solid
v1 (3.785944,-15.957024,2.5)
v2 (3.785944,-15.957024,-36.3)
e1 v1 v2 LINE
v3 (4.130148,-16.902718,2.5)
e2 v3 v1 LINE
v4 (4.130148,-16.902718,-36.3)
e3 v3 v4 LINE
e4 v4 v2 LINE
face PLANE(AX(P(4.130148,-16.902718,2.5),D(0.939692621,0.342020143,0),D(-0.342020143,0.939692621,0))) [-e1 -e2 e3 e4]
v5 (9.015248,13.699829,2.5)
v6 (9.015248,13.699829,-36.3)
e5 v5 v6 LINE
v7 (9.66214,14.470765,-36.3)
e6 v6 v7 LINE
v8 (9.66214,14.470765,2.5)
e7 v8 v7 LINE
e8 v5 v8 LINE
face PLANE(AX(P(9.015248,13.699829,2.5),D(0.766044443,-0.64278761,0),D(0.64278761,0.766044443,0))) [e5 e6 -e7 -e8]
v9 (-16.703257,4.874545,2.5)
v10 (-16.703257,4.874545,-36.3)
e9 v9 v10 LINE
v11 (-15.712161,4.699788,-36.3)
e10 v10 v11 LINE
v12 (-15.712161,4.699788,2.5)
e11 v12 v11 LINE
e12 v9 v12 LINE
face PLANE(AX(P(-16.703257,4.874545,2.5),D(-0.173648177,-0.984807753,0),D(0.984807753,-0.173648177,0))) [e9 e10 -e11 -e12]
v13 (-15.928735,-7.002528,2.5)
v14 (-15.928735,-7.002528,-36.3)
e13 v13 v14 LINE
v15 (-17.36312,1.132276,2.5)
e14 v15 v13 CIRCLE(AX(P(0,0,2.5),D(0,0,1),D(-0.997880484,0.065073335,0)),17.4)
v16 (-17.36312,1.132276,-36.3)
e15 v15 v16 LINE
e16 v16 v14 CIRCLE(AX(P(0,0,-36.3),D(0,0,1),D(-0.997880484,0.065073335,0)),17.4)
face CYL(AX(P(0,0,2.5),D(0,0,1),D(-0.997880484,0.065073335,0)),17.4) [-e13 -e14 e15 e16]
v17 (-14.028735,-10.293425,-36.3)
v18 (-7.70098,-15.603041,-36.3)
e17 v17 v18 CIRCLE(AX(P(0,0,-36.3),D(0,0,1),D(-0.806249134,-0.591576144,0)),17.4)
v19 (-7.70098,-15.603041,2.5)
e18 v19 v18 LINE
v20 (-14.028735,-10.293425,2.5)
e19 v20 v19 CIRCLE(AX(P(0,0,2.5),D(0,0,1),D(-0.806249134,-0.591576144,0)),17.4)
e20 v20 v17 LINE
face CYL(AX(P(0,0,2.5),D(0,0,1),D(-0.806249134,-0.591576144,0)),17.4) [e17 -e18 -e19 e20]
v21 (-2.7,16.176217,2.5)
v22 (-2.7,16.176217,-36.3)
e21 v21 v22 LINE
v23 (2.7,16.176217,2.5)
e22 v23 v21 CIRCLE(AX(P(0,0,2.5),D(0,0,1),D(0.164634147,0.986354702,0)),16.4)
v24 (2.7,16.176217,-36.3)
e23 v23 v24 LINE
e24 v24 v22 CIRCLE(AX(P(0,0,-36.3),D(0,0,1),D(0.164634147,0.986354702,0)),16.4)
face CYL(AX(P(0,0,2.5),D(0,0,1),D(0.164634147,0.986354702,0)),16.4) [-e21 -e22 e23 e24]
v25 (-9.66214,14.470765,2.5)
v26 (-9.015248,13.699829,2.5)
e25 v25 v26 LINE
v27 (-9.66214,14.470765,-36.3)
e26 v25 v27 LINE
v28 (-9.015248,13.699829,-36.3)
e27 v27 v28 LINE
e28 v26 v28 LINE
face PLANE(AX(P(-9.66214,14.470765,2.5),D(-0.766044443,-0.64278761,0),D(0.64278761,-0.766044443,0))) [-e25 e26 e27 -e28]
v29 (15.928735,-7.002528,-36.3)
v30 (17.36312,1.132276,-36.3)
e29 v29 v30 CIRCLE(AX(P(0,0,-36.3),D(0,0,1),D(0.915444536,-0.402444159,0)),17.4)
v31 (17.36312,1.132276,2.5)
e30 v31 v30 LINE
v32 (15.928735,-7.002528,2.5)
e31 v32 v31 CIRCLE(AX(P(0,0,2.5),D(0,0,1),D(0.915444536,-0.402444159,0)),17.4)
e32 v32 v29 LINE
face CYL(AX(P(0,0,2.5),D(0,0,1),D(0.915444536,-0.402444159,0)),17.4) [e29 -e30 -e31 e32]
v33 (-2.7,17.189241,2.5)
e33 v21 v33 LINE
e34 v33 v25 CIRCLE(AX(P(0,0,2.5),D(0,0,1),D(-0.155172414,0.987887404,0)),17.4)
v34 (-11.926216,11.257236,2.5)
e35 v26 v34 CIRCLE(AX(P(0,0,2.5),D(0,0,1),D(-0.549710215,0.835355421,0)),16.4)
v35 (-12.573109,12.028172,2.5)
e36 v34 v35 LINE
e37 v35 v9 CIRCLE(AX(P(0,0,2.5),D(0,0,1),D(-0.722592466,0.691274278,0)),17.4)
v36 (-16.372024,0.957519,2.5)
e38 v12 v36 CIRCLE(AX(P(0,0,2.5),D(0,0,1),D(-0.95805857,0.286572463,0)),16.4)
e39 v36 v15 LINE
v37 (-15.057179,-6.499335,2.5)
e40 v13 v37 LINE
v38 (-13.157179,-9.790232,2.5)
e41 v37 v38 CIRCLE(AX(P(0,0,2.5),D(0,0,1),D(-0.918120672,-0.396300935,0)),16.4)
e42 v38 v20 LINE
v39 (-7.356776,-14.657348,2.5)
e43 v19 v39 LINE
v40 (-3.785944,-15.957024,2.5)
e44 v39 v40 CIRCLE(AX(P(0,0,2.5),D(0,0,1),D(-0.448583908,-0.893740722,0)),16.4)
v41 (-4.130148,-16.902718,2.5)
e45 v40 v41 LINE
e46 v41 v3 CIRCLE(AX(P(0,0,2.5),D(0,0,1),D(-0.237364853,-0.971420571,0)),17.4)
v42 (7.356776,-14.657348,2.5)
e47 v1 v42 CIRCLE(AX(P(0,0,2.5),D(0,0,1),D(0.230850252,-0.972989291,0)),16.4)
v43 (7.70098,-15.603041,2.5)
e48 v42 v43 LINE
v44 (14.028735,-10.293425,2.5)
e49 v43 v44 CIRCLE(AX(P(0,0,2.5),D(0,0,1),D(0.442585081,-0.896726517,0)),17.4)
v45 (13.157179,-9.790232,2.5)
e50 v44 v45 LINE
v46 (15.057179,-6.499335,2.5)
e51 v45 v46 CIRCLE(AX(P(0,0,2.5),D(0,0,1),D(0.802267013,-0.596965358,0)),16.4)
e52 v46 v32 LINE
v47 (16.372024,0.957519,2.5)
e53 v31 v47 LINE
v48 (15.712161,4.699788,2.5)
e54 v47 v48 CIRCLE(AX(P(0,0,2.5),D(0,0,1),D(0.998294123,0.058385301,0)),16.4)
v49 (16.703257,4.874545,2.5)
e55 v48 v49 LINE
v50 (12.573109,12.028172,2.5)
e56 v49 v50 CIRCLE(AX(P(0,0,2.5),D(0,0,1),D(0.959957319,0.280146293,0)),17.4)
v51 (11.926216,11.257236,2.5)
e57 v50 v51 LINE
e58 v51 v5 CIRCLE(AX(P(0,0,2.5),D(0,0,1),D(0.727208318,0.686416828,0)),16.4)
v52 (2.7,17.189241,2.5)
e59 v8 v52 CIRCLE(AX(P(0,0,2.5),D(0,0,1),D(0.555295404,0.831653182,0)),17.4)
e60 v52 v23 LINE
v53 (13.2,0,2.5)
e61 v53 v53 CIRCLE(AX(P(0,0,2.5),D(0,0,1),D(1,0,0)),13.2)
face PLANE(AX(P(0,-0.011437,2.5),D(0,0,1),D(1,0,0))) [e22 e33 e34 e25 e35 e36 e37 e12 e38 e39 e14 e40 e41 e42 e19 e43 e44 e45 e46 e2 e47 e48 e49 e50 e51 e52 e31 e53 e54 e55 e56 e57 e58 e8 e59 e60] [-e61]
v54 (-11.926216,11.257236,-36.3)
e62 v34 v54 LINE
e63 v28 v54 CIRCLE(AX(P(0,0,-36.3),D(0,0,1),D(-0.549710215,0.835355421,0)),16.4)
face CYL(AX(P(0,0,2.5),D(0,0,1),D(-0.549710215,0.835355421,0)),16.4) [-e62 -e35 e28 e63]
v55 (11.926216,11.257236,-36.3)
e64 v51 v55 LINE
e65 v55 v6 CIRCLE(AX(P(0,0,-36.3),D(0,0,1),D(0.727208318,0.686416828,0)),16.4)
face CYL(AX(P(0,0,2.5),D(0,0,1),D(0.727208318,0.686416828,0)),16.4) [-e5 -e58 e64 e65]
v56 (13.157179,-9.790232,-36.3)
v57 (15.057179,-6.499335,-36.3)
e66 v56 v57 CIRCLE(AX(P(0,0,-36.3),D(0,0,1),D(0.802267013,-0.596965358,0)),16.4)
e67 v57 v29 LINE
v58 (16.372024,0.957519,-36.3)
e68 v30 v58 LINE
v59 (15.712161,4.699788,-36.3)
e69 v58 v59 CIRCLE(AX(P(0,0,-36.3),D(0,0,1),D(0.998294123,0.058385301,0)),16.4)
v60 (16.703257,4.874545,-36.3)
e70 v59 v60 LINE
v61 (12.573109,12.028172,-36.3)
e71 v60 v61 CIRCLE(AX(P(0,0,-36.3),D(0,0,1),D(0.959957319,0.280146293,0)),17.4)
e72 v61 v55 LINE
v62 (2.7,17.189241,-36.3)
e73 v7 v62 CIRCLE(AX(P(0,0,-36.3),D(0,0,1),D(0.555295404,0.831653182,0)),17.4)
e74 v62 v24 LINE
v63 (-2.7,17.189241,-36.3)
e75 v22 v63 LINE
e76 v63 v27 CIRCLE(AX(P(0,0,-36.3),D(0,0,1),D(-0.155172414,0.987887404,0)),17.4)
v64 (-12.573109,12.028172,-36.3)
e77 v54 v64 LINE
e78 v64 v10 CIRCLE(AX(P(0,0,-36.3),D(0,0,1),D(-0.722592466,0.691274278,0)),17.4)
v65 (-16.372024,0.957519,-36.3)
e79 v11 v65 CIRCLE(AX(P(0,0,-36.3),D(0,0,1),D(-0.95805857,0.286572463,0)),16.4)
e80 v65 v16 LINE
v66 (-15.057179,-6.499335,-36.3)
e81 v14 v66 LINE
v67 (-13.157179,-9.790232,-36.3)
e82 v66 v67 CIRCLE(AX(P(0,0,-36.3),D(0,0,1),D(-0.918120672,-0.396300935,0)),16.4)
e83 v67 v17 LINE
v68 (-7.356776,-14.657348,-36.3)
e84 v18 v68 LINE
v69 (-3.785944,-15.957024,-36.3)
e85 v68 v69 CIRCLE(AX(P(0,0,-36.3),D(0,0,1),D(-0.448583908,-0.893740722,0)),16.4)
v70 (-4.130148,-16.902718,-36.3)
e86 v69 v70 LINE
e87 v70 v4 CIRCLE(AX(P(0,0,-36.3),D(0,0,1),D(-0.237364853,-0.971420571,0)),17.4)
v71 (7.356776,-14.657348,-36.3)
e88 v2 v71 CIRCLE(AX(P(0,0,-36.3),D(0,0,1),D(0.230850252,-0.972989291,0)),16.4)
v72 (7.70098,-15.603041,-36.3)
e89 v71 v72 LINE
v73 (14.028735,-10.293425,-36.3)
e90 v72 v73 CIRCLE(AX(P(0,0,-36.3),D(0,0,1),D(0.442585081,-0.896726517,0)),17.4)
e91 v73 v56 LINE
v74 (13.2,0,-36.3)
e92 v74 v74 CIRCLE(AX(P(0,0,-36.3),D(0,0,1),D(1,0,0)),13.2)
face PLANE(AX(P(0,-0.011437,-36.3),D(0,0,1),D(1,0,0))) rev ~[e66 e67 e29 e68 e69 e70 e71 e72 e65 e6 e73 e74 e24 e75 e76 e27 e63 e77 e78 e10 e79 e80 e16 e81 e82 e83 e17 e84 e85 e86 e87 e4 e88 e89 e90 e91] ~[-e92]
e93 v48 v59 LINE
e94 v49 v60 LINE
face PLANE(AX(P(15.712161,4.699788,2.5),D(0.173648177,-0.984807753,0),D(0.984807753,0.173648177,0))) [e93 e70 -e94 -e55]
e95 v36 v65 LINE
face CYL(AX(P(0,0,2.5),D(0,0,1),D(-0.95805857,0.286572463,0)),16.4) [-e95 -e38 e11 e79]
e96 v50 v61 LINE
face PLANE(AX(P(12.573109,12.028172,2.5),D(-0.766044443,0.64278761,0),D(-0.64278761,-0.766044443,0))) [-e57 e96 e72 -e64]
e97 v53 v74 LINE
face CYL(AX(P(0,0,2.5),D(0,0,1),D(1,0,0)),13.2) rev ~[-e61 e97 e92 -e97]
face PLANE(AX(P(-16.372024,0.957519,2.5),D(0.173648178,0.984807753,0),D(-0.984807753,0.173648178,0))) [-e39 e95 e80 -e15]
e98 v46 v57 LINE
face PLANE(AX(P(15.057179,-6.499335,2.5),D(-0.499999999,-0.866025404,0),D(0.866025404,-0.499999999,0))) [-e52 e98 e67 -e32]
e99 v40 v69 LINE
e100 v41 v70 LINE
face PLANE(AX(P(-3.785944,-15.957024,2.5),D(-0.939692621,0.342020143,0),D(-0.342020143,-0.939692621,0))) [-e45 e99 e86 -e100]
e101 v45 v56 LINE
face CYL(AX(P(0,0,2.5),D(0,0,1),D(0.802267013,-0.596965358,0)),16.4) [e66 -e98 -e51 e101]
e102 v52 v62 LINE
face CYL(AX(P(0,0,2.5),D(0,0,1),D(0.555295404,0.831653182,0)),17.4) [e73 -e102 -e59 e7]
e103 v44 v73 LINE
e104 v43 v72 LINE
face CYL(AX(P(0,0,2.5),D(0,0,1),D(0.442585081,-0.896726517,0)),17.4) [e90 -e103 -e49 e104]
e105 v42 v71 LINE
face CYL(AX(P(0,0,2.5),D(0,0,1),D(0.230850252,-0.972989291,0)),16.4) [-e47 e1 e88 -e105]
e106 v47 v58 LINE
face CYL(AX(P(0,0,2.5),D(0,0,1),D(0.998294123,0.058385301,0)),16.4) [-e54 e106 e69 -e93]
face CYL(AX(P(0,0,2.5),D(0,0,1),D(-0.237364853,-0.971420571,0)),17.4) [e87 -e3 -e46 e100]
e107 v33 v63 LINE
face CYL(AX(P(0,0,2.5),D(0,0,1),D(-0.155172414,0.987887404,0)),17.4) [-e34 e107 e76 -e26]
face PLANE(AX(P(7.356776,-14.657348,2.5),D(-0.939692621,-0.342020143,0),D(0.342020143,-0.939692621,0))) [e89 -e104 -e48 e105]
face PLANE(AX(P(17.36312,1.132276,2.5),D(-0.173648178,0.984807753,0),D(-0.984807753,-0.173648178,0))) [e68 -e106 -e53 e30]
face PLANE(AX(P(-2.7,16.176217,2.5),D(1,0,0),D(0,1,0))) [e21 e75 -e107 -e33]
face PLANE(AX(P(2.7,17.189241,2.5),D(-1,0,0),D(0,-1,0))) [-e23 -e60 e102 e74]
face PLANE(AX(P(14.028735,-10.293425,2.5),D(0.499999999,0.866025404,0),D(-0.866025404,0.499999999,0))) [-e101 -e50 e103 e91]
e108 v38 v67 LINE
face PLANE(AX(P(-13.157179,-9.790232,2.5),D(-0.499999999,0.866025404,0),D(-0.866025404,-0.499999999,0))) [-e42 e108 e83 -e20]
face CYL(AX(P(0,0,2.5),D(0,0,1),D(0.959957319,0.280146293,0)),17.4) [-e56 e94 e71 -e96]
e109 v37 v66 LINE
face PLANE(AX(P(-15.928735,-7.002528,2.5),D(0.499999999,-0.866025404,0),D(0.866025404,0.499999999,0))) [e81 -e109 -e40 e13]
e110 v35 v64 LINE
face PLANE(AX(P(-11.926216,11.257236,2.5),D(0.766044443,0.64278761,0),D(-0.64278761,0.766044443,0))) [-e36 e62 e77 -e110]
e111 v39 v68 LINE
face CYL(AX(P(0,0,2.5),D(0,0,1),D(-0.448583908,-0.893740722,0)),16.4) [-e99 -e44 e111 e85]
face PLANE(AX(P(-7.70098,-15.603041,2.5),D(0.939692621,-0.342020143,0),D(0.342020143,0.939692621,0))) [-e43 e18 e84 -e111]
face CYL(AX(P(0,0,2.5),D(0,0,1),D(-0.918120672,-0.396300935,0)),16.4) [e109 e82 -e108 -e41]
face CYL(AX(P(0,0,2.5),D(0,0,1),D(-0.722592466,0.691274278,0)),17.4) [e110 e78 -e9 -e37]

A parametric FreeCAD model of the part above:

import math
import FreeCAD as App
import Part
import Sketcher

V = App.Vector
Q = App.Units.Quantity

doc = App.newDocument("Part")
body = doc.addObject("PartDesign::Body", "Body")

sketch1 = doc.addObject("Sketcher::SketchObject", "Sketch")
body.addObject(sketch1)
sketch1.AttachmentSupport = (doc.XY_Plane, [""])
sketch1.MapMode = "FlatFace"
sketch1.AttachmentOffset = App.Placement(V(0, 0, 2.5), App.Rotation())
sketch1.addGeometry([
    Part.LineSegment(V(2.7, 17.2, 0), V(2.7, 16.2, 0)),
    Part.ArcOfCircle(Part.Circle(V(0, 0, 0), V(0, 0, 1), 16.4), math.radians(80.52), math.radians(99.48)),
    Part.LineSegment(V(-2.7, 16.2, 0), V(-2.7, 17.2, 0)),
    Part.ArcOfCircle(Part.Circle(V(0, 0, 0), V(0, 0, 1), 17.4), math.radians(99), math.radians(124)),
    Part.LineSegment(V(-9.7, 14.5, 0), V(-9, 13.7, 0)),
    Part.ArcOfCircle(Part.Circle(V(0, 0, 0), V(0, 0, 1), 16.4), math.radians(123.35), math.radians(136.65)),
    Part.LineSegment(V(-11.9, 11.3, 0), V(-12.6, 12, 0)),
    Part.ArcOfCircle(Part.Circle(V(0, 0, 0), V(0, 0, 1), 17.4), math.radians(136), math.radians(164)),
    Part.LineSegment(V(-16.7, 4.9, 0), V(-15.7, 4.7, 0)),
    Part.ArcOfCircle(Part.Circle(V(0, 0, 0), V(0, 0, 1), 16.4), math.radians(163.35), math.radians(176.65)),
    Part.LineSegment(V(-16.4, 1, 0), V(-17.4, 1.1, 0)),
    Part.ArcOfCircle(Part.Circle(V(0, 0, 0), V(0, 0, 1), 17.4), math.radians(176), math.radians(204)),
    Part.LineSegment(V(-15.9, -7, 0), V(-15.1, -6.5, 0)),
    Part.ArcOfCircle(Part.Circle(V(0, 0, 0), V(0, 0, 1), 16.4), math.radians(-156.65), math.radians(-143.35)),
    Part.LineSegment(V(-13.2, -9.8, 0), V(-14, -10.3, 0)),
    Part.ArcOfCircle(Part.Circle(V(0, 0, 0), V(0, 0, 1), 17.4), math.radians(-144), math.radians(-116)),
    Part.LineSegment(V(-7.7, -15.6, 0), V(-7.4, -14.7, 0)),
    Part.ArcOfCircle(Part.Circle(V(0, 0, 0), V(0, 0, 1), 16.4), math.radians(-116.65), math.radians(-103.35)),
    Part.LineSegment(V(-3.8, -16, 0), V(-4.1, -16.9, 0)),
    Part.ArcOfCircle(Part.Circle(V(0, 0, 0), V(0, 0, 1), 17.4), math.radians(-104), math.radians(-76)),
    Part.LineSegment(V(4.1, -16.9, 0), V(3.8, -16, 0)),
    Part.ArcOfCircle(Part.Circle(V(0, 0, 0), V(0, 0, 1), 16.4), math.radians(-76.65), math.radians(-63.35)),
    Part.LineSegment(V(7.4, -14.7, 0), V(7.7, -15.6, 0)),
    Part.ArcOfCircle(Part.Circle(V(0, 0, 0), V(0, 0, 1), 17.4), math.radians(-64), math.radians(-36)),
    Part.LineSegment(V(14, -10.3, 0), V(13.2, -9.8, 0)),
    Part.ArcOfCircle(Part.Circle(V(0, 0, 0), V(0, 0, 1), 16.4), math.radians(-36.65), math.radians(-23.35)),
    Part.LineSegment(V(15.1, -6.5, 0), V(15.9, -7, 0)),
    Part.ArcOfCircle(Part.Circle(V(0, 0, 0), V(0, 0, 1), 17.4), math.radians(-24), math.radians(4)),
    Part.LineSegment(V(17.4, 1.1, 0), V(16.4, 1, 0)),
    Part.ArcOfCircle(Part.Circle(V(0, 0, 0), V(0, 0, 1), 16.4), math.radians(3.35), math.radians(16.65)),
    Part.LineSegment(V(15.7, 4.7, 0), V(16.7, 4.9, 0)),
    Part.ArcOfCircle(Part.Circle(V(0, 0, 0), V(0, 0, 1), 17.4), math.radians(16), math.radians(44)),
    Part.LineSegment(V(12.6, 12, 0), V(11.9, 11.3, 0)),
    Part.ArcOfCircle(Part.Circle(V(0, 0, 0), V(0, 0, 1), 16.4), math.radians(43.35), math.radians(56.65)),
    Part.LineSegment(V(9, 13.7, 0), V(9.7, 14.5, 0)),
    Part.ArcOfCircle(Part.Circle(V(0, 0, 0), V(0, 0, 1), 17.4), math.radians(56), math.radians(81)),
    Part.Circle(V(0, 0, 0), V(0, 0, 1), 13.2),
], False)
sketch1.addConstraint([
    Sketcher.Constraint("Coincident", 0, 2, 1, 1),
    Sketcher.Constraint("Coincident", 1, 2, 2, 1),
    Sketcher.Constraint("Coincident", 2, 2, 3, 1),
    Sketcher.Constraint("Coincident", 3, 2, 4, 1),
    Sketcher.Constraint("Coincident", 4, 2, 5, 1),
    Sketcher.Constraint("Coincident", 5, 2, 6, 1),
    Sketcher.Constraint("Coincident", 6, 2, 7, 1),
    Sketcher.Constraint("Coincident", 7, 2, 8, 1),
    Sketcher.Constraint("Coincident", 8, 2, 9, 1),
    Sketcher.Constraint("Coincident", 9, 2, 10, 1),
    Sketcher.Constraint("Coincident", 10, 2, 11, 1),
    Sketcher.Constraint("Coincident", 11, 2, 12, 1),
    Sketcher.Constraint("Coincident", 12, 2, 13, 1),
    Sketcher.Constraint("Coincident", 13, 2, 14, 1),
    Sketcher.Constraint("Coincident", 14, 2, 15, 1),
    Sketcher.Constraint("Coincident", 15, 2, 16, 1),
    Sketcher.Constraint("Coincident", 16, 2, 17, 1),
    Sketcher.Constraint("Coincident", 17, 2, 18, 1),
    Sketcher.Constraint("Coincident", 18, 2, 19, 1),
    Sketcher.Constraint("Coincident", 19, 2, 20, 1),
    Sketcher.Constraint("Coincident", 20, 2, 21, 1),
    Sketcher.Constraint("Coincident", 21, 2, 22, 1),
    Sketcher.Constraint("Coincident", 22, 2, 23, 1),
    Sketcher.Constraint("Coincident", 23, 2, 24, 1),
    Sketcher.Constraint("Coincident", 24, 2, 25, 1),
    Sketcher.Constraint("Coincident", 25, 2, 26, 1),
    Sketcher.Constraint("Coincident", 26, 2, 27, 1),
    Sketcher.Constraint("Coincident", 27, 2, 28, 1),
    Sketcher.Constraint("Coincident", 28, 2, 29, 1),
    Sketcher.Constraint("Coincident", 29, 2, 30, 1),
    Sketcher.Constraint("Coincident", 30, 2, 31, 1),
    Sketcher.Constraint("Coincident", 31, 2, 32, 1),
    Sketcher.Constraint("Coincident", 32, 2, 33, 1),
    Sketcher.Constraint("Coincident", 33, 2, 34, 1),
    Sketcher.Constraint("Coincident", 34, 2, 35, 1),
    Sketcher.Constraint("Coincident", 35, 2, 0, 1),
    Sketcher.Constraint("Vertical", 0),
    Sketcher.Constraint("Vertical", 2),
    Sketcher.Constraint("Coincident", 1, 3, -1, 1),
    Sketcher.Constraint("Coincident", 3, 3, -1, 1),
    Sketcher.Constraint("Coincident", 5, 3, -1, 1),
    Sketcher.Constraint("Coincident", 7, 3, -1, 1),
    Sketcher.Constraint("Coincident", 9, 3, -1, 1),
    Sketcher.Constraint("Coincident", 11, 3, -1, 1),
    Sketcher.Constraint("Coincident", 13, 3, -1, 1),
    Sketcher.Constraint("Coincident", 15, 3, -1, 1),
    Sketcher.Constraint("Coincident", 17, 3, -1, 1),
    Sketcher.Constraint("Coincident", 19, 3, -1, 1),
    Sketcher.Constraint("Coincident", 21, 3, -1, 1),
    Sketcher.Constraint("Coincident", 23, 3, -1, 1),
    Sketcher.Constraint("Coincident", 25, 3, -1, 1),
    Sketcher.Constraint("Coincident", 27, 3, -1, 1),
    Sketcher.Constraint("Coincident", 29, 3, -1, 1),
    Sketcher.Constraint("Coincident", 31, 3, -1, 1),
    Sketcher.Constraint("Coincident", 33, 3, -1, 1),
    Sketcher.Constraint("Coincident", 35, 3, -1, 1),
    Sketcher.Constraint("Coincident", 36, 3, -1, 1),
    Sketcher.Constraint("Equal", 1, 5),
    Sketcher.Constraint("Equal", 3, 7),
    Sketcher.Constraint("Equal", 5, 9),
    Sketcher.Constraint("Equal", 7, 11),
    Sketcher.Constraint("Equal", 9, 13),
    Sketcher.Constraint("Equal", 11, 15),
    Sketcher.Constraint("Equal", 13, 17),
    Sketcher.Constraint("Equal", 15, 19),
    Sketcher.Constraint("Equal", 17, 21),
    Sketcher.Constraint("Equal", 19, 23),
    Sketcher.Constraint("Equal", 21, 25),
    Sketcher.Constraint("Equal", 23, 27),
    Sketcher.Constraint("Equal", 25, 29),
    Sketcher.Constraint("Equal", 27, 31),
    Sketcher.Constraint("Equal", 29, 33),
    Sketcher.Constraint("Equal", 31, 35),
    Sketcher.Constraint("Parallel", 4, 6),
    Sketcher.Constraint("Parallel", 8, 10),
    Sketcher.Constraint("Parallel", 12, 14),
    Sketcher.Constraint("Parallel", 16, 18),
    Sketcher.Constraint("Parallel", 20, 22),
    Sketcher.Constraint("Parallel", 24, 26),
    Sketcher.Constraint("Parallel", 28, 30),
    Sketcher.Constraint("Parallel", 32, 34),
    Sketcher.Constraint("Horizontal", 0, 2, 1, 2),
    Sketcher.Constraint("Horizontal", 18, 2, 19, 2),
    Sketcher.Constraint("Horizontal", 17, 2, 20, 2),
    Sketcher.Constraint("Horizontal", 16, 2, 21, 2),
    Sketcher.Constraint("Horizontal", 14, 2, 23, 2),
    Sketcher.Constraint("Horizontal", 13, 2, 24, 2),
    Sketcher.Constraint("Horizontal", 12, 2, 25, 2),
    Sketcher.Constraint("Horizontal", 10, 2, 27, 2),
    Sketcher.Constraint("Horizontal", 9, 2, 28, 2),
    Sketcher.Constraint("Horizontal", 8, 2, 29, 2),
    Sketcher.Constraint("Horizontal", 6, 2, 31, 2),
    Sketcher.Constraint("Horizontal", 5, 2, 32, 2),
    Sketcher.Constraint("Horizontal", 4, 2, 33, 2),
    Sketcher.Constraint("Equal", 4, 6),
    Sketcher.Constraint("Equal", 6, 8),
    Sketcher.Constraint("Equal", 8, 10),
    Sketcher.Constraint("Equal", 10, 12),
    Sketcher.Constraint("Equal", 12, 14),
    Sketcher.Constraint("Equal", 14, 16),
    Sketcher.Constraint("Equal", 16, 18),
    Sketcher.Constraint("Diameter", 36, Q("26.4 mm")),
    Sketcher.Constraint("Radius", 1, Q("16.4 mm")),
    Sketcher.Constraint("Radius", 3, Q("17.4 mm")),
    Sketcher.Constraint("Angle", 4, Q("-50 deg")),
    Sketcher.Constraint("Angle", 8, Q("-10 deg")),
    Sketcher.Constraint("Angle", 12, Q("30 deg")),
    Sketcher.Constraint("Angle", 16, Q("70 deg")),
    Sketcher.Constraint("DistanceX", -1, 1, 0, 2, Q("2.7 mm")),
    Sketcher.Constraint("DistanceX", 12, 2, 13, 2, Q("1.9 mm")),
])
pad1 = doc.addObject("PartDesign::Pad", "Pad")
body.addObject(pad1)
pad1.Profile = sketch1
pad1.Length = 38.8
pad1.Reversed = True

doc.recompute()
